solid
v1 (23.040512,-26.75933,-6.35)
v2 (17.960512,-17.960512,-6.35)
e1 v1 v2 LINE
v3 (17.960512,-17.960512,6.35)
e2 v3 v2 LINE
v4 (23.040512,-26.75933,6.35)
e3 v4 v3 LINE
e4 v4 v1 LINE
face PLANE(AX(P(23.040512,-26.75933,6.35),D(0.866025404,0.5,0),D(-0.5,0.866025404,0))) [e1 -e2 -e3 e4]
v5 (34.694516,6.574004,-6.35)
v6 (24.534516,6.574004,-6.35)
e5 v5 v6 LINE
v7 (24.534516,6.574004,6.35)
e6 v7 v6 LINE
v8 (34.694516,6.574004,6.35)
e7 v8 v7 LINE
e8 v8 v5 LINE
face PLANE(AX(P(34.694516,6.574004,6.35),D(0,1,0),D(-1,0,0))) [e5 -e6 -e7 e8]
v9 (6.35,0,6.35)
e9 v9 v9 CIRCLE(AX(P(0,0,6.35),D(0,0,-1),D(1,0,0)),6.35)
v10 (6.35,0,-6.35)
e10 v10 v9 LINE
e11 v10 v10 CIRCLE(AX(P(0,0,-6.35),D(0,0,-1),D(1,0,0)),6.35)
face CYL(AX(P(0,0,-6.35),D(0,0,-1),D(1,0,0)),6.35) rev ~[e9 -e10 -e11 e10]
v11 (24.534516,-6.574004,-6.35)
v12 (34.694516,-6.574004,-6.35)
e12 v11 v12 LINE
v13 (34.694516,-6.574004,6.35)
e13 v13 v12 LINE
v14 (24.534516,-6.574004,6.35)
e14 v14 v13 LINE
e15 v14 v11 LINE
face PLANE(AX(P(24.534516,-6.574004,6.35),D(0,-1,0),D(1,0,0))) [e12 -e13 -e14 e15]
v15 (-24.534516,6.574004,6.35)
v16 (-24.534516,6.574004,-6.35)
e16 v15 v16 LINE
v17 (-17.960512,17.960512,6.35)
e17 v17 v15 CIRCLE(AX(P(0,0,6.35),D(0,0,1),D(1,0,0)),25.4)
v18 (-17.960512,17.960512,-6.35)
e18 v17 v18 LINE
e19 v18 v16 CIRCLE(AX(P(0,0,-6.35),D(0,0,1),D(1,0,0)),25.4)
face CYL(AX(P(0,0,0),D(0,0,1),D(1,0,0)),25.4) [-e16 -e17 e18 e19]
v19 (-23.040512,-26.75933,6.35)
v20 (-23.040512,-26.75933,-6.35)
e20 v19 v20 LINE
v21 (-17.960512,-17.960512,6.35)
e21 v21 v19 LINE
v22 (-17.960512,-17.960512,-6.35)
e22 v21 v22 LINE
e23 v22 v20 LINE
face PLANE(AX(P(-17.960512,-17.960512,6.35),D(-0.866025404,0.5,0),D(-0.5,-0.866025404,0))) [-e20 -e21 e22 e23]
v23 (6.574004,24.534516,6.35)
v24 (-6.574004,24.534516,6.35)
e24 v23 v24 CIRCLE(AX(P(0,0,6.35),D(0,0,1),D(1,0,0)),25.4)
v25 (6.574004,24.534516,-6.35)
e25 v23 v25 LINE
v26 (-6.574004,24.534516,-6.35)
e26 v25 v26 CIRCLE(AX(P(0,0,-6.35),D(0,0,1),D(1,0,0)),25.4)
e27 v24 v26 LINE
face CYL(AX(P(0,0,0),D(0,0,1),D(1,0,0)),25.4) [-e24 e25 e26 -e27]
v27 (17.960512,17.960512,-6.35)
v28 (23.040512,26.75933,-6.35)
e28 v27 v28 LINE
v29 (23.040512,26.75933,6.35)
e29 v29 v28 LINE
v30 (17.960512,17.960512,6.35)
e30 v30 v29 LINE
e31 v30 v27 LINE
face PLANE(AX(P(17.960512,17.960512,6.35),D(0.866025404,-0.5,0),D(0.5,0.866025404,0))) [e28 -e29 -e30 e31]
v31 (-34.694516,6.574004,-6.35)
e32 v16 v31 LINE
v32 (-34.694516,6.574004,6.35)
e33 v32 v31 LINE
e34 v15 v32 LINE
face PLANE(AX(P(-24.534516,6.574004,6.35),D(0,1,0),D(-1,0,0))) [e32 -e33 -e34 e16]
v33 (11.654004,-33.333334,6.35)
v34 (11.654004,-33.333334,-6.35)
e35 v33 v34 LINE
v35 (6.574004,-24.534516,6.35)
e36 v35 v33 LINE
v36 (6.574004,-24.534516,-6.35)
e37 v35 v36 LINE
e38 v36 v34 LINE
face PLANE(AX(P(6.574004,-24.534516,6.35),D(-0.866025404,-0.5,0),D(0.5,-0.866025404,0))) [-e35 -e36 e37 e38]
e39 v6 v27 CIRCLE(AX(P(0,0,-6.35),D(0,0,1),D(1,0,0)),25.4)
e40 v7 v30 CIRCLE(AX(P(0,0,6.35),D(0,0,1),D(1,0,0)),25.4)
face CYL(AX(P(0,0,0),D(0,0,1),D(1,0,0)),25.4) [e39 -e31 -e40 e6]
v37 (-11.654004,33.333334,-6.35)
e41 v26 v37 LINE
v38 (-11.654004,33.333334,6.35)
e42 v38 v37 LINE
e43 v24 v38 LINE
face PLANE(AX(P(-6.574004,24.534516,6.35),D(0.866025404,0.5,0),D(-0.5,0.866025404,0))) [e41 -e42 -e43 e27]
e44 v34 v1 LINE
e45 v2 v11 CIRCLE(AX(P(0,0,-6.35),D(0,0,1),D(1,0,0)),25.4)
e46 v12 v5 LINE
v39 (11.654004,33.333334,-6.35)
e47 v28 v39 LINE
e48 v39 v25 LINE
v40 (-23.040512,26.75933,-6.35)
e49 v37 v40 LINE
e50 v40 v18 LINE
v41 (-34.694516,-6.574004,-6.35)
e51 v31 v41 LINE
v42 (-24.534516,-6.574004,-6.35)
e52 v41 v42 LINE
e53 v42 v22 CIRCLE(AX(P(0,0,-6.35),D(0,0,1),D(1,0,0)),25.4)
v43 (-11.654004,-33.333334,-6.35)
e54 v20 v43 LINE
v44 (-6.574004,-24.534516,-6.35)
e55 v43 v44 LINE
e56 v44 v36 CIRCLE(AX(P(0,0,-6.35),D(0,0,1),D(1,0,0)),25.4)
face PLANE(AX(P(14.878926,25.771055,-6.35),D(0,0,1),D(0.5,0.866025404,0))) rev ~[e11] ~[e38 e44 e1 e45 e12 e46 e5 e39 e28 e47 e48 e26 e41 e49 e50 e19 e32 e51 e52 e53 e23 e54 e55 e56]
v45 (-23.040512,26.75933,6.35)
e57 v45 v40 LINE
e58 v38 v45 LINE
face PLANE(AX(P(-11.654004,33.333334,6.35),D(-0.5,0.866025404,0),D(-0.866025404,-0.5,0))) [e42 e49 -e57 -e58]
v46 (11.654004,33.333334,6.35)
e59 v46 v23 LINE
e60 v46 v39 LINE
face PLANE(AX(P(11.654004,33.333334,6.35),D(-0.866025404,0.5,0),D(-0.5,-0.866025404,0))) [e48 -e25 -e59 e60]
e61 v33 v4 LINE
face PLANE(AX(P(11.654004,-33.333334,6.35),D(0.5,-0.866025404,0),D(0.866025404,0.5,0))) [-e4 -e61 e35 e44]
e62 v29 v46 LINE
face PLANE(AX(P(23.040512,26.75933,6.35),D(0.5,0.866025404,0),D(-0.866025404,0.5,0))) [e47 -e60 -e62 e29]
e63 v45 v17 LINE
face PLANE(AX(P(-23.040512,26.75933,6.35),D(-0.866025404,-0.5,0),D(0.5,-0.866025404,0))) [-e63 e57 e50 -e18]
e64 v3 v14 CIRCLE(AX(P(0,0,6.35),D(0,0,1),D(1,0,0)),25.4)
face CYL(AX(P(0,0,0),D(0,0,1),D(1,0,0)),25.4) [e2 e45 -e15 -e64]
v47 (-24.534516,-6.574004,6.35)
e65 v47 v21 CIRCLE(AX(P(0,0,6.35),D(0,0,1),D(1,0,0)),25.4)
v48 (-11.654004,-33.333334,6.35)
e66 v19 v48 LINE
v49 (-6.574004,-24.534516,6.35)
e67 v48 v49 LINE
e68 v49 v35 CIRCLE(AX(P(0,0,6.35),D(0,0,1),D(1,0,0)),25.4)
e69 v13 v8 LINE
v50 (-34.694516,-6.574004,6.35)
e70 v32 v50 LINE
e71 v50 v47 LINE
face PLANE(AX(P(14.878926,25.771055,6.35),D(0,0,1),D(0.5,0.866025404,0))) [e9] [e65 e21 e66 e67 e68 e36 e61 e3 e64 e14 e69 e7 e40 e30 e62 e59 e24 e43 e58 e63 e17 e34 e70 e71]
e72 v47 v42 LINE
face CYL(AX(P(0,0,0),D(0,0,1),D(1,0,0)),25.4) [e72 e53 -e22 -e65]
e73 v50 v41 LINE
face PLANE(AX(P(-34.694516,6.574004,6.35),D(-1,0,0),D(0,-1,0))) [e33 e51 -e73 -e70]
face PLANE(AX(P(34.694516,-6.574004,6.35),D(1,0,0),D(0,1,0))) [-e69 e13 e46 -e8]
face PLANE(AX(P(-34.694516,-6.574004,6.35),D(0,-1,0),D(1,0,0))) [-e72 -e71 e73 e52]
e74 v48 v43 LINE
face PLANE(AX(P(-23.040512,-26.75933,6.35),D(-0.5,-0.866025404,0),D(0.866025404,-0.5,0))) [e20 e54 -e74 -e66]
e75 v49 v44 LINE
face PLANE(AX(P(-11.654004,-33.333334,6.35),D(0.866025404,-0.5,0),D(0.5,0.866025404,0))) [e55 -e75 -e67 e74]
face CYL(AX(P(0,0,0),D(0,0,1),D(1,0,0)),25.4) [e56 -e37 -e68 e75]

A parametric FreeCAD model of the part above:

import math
import FreeCAD as App
import Part
import Sketcher
from FreeCAD import Vector
Q = App.Units.Quantity

doc = App.newDocument("Part")
body = doc.addObject("PartDesign::Body", "Body")

sketch1 = body.newObject("Sketcher::SketchObject", "Sketch")
sketch1.AttachmentSupport = (doc.getObject("XY_Plane"), [""])
sketch1.MapMode = "FlatFace"
sketch1.addGeometry(Part.Circle(Vector(0, 0, 0), Vector(0, 0, 1), 25.4), False)
sketch1.addConstraint([
    Sketcher.Constraint("Coincident", 0, 3, -1, 1),
    Sketcher.Constraint("Diameter", 0, Q("2 in")),
])
pad1 = body.newObject("PartDesign::Pad", "Pad")
pad1.Profile = sketch1
pad1.Length = Q("0.5 in")
pad1.Midplane = True

sketch2 = body.newObject("Sketcher::SketchObject", "Sketch001")
sketch2.AttachmentSupport = (doc.getObject("XY_Plane"), [""])
sketch2.MapMode = "FlatFace"
sketch2.AttachmentOffset = App.Placement(Vector(0, 0, 0.25 * 25.4), App.Rotation())
sketch2.addGeometry([
    Part.ArcOfCircle(Part.Circle(Vector(-0.000064, 0.000008, 0), Vector(0, 0, 1), 25.400064), math.radians(-14.999981), math.radians(-0.000018)),
    Part.LineSegment(Vector(24.534516, -6.574004, 0), Vector(34.694516, -6.574004, 0)),
    Part.LineSegment(Vector(34.694516, -6.574004, 0), Vector(34.694516, 6.574004, 0)),
    Part.LineSegment(Vector(34.694516, 6.574004, 0), Vector(24.534516, 6.574004, 0)),
    Part.ArcOfCircle(Part.Circle(Vector(-0.000064, -0.000008, 0), Vector(0, 0, 1), 25.400064), math.radians(0.000018), math.radians(14.999981)),
], False)
sketch2.addConstraint([
    Sketcher.Constraint("Coincident", 0, 1, 1, 1),
    Sketcher.Constraint("Coincident", 1, 2, 2, 1),
    Sketcher.Constraint("Coincident", 2, 2, 3, 1),
    Sketcher.Constraint("Coincident", 3, 2, 4, 2),
    Sketcher.Constraint("Tangent", 4, 1, 0, 2),
    Sketcher.Constraint("Horizontal", 1),
    Sketcher.Constraint("Vertical", 2),
    Sketcher.Constraint("Horizontal", 3),
    Sketcher.Constraint("Equal", 0, 4),
    Sketcher.Constraint("Symmetric", 0, 1, 3, 2, -1),
    Sketcher.Constraint("PointOnObject", 4, 1, -1),
    Sketcher.Constraint("DistanceX", 1, 1, 1, 2, Q("0.4 in")),
    Sketcher.Constraint("DistanceX", -1, 1, 4, 1, Q("1 in")),
    Sketcher.Constraint("Radius", 0, Q("25.400064 mm")),
    Sketcher.Constraint("DistanceY", 2, 1, 2, 2, Q("13.148008 mm")),
])
pad2 = body.newObject("PartDesign::Pad", "Pad001")
pad2.Profile = sketch2
pad2.Length = Q("0.5 in")
pad2.Reversed = True
body2 = doc.addObject("PartDesign::Body", "Body001")
doc.recompute()

body2.BaseFeature = body
doc.recompute()

body3 = doc.addObject("PartDesign::Body", "Body002")
body3.BaseFeature = body
body3.Placement = App.Placement(Vector(0, 0, 0), App.Rotation(Vector(0, 0, -1), 60))
boolean = body2.newObject("PartDesign::Boolean", "Boolean")
boolean.Type = "Fuse"
boolean.addObjects([body3])
doc.recompute()

body4 = doc.addObject("PartDesign::Body", "Body003")
body4.BaseFeature = body
body4.Placement = App.Placement(Vector(0, 0, 0), App.Rotation(Vector(0, 0, -1), 120))
boolean2 = body2.newObject("PartDesign::Boolean", "Boolean001")
boolean2.Type = "Fuse"
boolean2.addObjects([body4])
doc.recompute()

body5 = doc.addObject("PartDesign::Body", "Body004")
body5.BaseFeature = body
body5.Placement = App.Placement(Vector(0, 0, 0), App.Rotation(Vector(0, 0, -1), 180))
boolean3 = body2.newObject("PartDesign::Boolean", "Boolean002")
boolean3.Type = "Fuse"
boolean3.addObjects([body5])
doc.recompute()

body6 = doc.addObject("PartDesign::Body", "Body005")
body6.BaseFeature = body
body6.Placement = App.Placement(Vector(0, 0, 0), App.Rotation(Vector(0, 0, -1), 240))
boolean4 = body2.newObject("PartDesign::Boolean", "Boolean003")
boolean4.Type = "Fuse"
boolean4.addObjects([body6])
doc.recompute()

body.Placement = App.Placement(Vector(0, 0, 0), App.Rotation(Vector(0, 0, -1), 300))
boolean5 = body2.newObject("PartDesign::Boolean", "Boolean004")
boolean5.Type = "Fuse"
boolean5.addObjects([body])

sketch3 = body2.newObject("Sketcher::SketchObject", "Sketch002")
sketch3.AttachmentSupport = (doc.getObject("XY_Plane001"), [""])
sketch3.MapMode = "FlatFace"
sketch3.AttachmentOffset = App.Placement(Vector(0, 0, -0.25 * 25.4), App.Rotation())
sketch3.addGeometry(Part.Circle(Vector(0, 0, 0), Vector(0, 0, 1), 6.35), False)
sketch3.addConstraint([
    Sketcher.Constraint("Coincident", 0, 3, -1, 1),
    Sketcher.Constraint("Diameter", 0, Q("0.5 in")),
])
pocket1 = body2.newObject("PartDesign::Pocket", "Pocket")
pocket1.Profile = sketch3
pocket1.Length = Q("1 in")
pocket1.Reversed = True

doc.recompute()
